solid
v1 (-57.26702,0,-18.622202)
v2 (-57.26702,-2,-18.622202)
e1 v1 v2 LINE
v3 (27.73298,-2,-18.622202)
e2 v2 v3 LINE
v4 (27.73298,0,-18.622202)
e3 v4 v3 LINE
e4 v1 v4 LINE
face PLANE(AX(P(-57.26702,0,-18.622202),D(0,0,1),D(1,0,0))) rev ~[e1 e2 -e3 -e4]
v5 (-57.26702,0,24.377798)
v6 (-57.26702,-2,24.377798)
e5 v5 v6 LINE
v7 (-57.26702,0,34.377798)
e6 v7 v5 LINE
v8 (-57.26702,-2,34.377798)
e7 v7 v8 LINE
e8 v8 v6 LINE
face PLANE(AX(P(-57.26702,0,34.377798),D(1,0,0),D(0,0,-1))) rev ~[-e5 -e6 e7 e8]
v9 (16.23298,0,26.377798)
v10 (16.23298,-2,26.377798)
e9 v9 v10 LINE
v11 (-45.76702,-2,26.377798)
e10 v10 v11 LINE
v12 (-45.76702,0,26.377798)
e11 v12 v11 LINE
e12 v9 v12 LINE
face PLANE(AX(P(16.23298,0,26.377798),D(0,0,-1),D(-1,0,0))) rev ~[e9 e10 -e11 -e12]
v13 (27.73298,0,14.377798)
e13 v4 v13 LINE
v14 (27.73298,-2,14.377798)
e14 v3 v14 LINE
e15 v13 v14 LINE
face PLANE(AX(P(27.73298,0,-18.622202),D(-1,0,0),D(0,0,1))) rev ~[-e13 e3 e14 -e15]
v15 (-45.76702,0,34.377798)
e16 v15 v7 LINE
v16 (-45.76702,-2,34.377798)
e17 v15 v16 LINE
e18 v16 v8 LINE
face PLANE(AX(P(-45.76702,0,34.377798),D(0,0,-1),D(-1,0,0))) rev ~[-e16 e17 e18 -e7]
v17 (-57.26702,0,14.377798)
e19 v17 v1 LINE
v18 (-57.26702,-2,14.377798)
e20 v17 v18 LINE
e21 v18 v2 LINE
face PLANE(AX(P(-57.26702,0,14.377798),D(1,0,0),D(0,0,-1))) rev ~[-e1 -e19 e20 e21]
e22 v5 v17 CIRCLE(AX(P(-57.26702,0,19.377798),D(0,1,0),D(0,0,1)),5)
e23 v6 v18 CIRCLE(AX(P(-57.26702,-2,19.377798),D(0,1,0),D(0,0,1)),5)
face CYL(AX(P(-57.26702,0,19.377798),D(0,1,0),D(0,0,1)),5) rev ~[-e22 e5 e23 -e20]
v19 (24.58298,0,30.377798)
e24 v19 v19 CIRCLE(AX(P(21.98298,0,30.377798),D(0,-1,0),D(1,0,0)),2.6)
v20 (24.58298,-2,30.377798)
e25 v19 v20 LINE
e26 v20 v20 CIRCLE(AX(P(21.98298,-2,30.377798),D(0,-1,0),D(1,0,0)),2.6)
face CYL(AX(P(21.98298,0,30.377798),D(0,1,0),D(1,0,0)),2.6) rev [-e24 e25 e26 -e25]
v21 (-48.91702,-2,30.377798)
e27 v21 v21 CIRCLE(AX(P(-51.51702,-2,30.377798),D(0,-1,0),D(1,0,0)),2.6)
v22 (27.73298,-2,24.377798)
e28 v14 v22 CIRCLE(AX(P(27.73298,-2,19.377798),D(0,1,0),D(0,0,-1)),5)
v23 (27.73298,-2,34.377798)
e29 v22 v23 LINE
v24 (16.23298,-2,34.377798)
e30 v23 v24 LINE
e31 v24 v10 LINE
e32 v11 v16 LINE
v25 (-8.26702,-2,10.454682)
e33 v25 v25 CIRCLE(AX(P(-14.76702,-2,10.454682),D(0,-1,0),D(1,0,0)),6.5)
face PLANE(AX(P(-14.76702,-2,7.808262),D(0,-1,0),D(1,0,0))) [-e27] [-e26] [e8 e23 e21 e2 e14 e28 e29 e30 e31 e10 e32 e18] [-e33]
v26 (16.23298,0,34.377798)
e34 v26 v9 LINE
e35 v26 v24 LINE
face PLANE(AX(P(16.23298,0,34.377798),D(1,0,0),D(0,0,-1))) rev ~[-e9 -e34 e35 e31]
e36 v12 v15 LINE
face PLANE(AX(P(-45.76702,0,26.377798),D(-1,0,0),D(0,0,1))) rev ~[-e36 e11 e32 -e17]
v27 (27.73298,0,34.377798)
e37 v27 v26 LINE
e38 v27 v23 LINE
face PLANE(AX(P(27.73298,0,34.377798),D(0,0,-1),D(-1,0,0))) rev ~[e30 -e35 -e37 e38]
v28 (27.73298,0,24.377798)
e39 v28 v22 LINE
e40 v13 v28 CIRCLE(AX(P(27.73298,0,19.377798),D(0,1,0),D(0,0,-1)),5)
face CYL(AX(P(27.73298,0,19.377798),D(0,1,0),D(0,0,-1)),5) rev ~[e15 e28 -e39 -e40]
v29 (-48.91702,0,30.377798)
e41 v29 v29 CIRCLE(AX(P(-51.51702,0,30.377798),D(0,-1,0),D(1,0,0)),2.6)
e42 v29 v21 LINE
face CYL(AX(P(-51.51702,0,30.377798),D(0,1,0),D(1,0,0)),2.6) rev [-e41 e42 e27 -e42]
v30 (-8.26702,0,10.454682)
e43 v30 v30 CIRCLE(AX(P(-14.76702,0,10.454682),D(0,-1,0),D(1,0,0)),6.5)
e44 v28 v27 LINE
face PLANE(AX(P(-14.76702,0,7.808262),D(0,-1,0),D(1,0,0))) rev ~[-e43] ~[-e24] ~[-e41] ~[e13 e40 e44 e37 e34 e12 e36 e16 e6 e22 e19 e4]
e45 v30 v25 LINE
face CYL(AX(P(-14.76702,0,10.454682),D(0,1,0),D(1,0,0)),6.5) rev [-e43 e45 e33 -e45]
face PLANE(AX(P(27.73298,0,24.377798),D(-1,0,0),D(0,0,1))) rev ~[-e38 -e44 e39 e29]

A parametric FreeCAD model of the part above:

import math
import FreeCAD as App
import Part
import Sketcher

V = App.Vector
Q = App.Units.Quantity

doc = App.newDocument("Part")
body = doc.addObject("PartDesign::Body", "Body")

# Sketch on XZ plane
sketch1 = body.newObject("Sketcher::SketchObject", "Sketch")
sketch1.AttachmentSupport = (doc.getObject("XZ_Plane"), [""])
sketch1.MapMode = "FlatFace"
sketch1.addGeometry([
    Part.LineSegment(V(16.23298, 26.377798, 0), V(-45.76702, 26.377798, 0)),  # 0
    Part.LineSegment(V(-45.76702, 26.377798, 0), V(-45.76702, 34.377798, 0)),  # 1
    Part.LineSegment(V(-45.76702, 34.377798, 0), V(-57.26702, 34.377798, 0)),  # 2
    Part.LineSegment(V(-57.26702, 34.377798, 0), V(-57.26702, 24.377798, 0)),  # 3
    Part.ArcOfCircle(Part.Circle(V(-57.26702, 19.377798, 0), V(0, 0, 1), 5), math.radians(-90), math.radians(90)),  # 4
    Part.LineSegment(V(-57.26702, 14.377798, 0), V(-57.26702, -18.622202, 0)),  # 5
    Part.LineSegment(V(-57.26702, -18.622202, 0), V(27.73298, -18.622202, 0)),  # 6
    Part.LineSegment(V(27.73298, -18.622202, 0), V(27.73298, 14.377798, 0)),  # 7
    Part.ArcOfCircle(Part.Circle(V(27.73298, 19.377798, 0), V(0, 0, 1), 5), math.radians(90), math.radians(270)),  # 8
    Part.LineSegment(V(27.73298, 24.377798, 0), V(27.73298, 34.377798, 0)),  # 9
    Part.LineSegment(V(27.73298, 34.377798, 0), V(16.23298, 34.377798, 0)),  # 10
    Part.LineSegment(V(16.23298, 34.377798, 0), V(16.23298, 26.377798, 0)),  # 11
    Part.Circle(V(-14.76702, 10.454682, 0), V(0, 0, 1), 6.5),  # 12
    Part.Circle(V(-51.51702, 30.377798, 0), V(0, 0, 1), 2.6),  # 13
    Part.Circle(V(21.98298, 30.377798, 0), V(0, 0, 1), 2.6),  # 14
], False)
sketch1.addConstraint([
    Sketcher.Constraint("Coincident", 0, 2, 1, 1),
    Sketcher.Constraint("Coincident", 1, 2, 2, 1),
    Sketcher.Constraint("Coincident", 2, 2, 3, 1),
    Sketcher.Constraint("Coincident", 3, 2, 4, 2),
    Sketcher.Constraint("Coincident", 4, 1, 5, 1),
    Sketcher.Constraint("Coincident", 5, 2, 6, 1),
    Sketcher.Constraint("Coincident", 6, 2, 7, 1),
    Sketcher.Constraint("Coincident", 7, 2, 8, 2),
    Sketcher.Constraint("Coincident", 8, 1, 9, 1),
    Sketcher.Constraint("Coincident", 9, 2, 10, 1),
    Sketcher.Constraint("Coincident", 10, 2, 11, 1),
    Sketcher.Constraint("Coincident", 11, 2, 0, 1),
    Sketcher.Constraint("Horizontal", 0),
    Sketcher.Constraint("Vertical", 1),
    Sketcher.Constraint("Horizontal", 2),
    Sketcher.Constraint("Vertical", 3),
    Sketcher.Constraint("Vertical", 5),
    Sketcher.Constraint("Horizontal", 6),
    Sketcher.Constraint("Vertical", 7),
    Sketcher.Constraint("Vertical", 9),
    Sketcher.Constraint("Horizontal", 10),
    Sketcher.Constraint("Vertical", 11),
    Sketcher.Constraint("Equal", 4, 8),
    Sketcher.Constraint("Equal", 13, 14),
    Sketcher.Constraint("Horizontal", 4, 3, 8, 3),
    Sketcher.Constraint("Horizontal", 13, 3, 14, 3),
    Sketcher.Constraint("Horizontal", 2, 2, 9, 2),
    Sketcher.Constraint("Vertical", 4, 3, 2, 2),
    Sketcher.Constraint("Vertical", 3, 2, 4, 1),
    Sketcher.Constraint("Vertical", 8, 3, 6, 2),
    Sketcher.Constraint("Vertical", 7, 2, 8, 1),
    Sketcher.Constraint("Equal", 2, 10),
    Sketcher.Constraint("Diameter", 12, Q("13 mm")),
    Sketcher.Constraint("Radius", 4, Q("5 mm")),
    Sketcher.Constraint("Diameter", 13, Q("5.2 mm")),
    Sketcher.Constraint("DistanceX", 0, 2, 0, 1, Q("62 mm")),
    Sketcher.Constraint("DistanceX", 6, 1, 6, 2, Q("85 mm")),
    Sketcher.Constraint("DistanceY", 1, 1, 1, 2, Q("8 mm")),
    Sketcher.Constraint("DistanceY", 3, 2, 3, 1, Q("10 mm")),
    Sketcher.Constraint("DistanceY", 5, 2, 5, 1, Q("33 mm")),
    Sketcher.Constraint("DistanceY", 4, 3, 13, 3, Q("11 mm")),
    Sketcher.Constraint("DistanceX", 0, 2, 12, 3, Q("31 mm")),
    Sketcher.Constraint("DistanceX", 13, 3, 14, 3, Q("73.5 mm")),
    Sketcher.Constraint("DistanceX", 4, 3, 13, 3, Q("5.75 mm")),
    Sketcher.Constraint("DistanceX", 4, 3, -1, 1, Q("57.26702 mm")),
    Sketcher.Constraint("DistanceY", -1, 1, 4, 3, Q("19.377798 mm")),
    Sketcher.Constraint("DistanceY", -1, 1, 12, 3, Q("10.454682 mm")),
])
pad1 = body.newObject("PartDesign::Pad", "Pad")
pad1.Profile = sketch1
pad1.Length = 2

doc.recompute()
